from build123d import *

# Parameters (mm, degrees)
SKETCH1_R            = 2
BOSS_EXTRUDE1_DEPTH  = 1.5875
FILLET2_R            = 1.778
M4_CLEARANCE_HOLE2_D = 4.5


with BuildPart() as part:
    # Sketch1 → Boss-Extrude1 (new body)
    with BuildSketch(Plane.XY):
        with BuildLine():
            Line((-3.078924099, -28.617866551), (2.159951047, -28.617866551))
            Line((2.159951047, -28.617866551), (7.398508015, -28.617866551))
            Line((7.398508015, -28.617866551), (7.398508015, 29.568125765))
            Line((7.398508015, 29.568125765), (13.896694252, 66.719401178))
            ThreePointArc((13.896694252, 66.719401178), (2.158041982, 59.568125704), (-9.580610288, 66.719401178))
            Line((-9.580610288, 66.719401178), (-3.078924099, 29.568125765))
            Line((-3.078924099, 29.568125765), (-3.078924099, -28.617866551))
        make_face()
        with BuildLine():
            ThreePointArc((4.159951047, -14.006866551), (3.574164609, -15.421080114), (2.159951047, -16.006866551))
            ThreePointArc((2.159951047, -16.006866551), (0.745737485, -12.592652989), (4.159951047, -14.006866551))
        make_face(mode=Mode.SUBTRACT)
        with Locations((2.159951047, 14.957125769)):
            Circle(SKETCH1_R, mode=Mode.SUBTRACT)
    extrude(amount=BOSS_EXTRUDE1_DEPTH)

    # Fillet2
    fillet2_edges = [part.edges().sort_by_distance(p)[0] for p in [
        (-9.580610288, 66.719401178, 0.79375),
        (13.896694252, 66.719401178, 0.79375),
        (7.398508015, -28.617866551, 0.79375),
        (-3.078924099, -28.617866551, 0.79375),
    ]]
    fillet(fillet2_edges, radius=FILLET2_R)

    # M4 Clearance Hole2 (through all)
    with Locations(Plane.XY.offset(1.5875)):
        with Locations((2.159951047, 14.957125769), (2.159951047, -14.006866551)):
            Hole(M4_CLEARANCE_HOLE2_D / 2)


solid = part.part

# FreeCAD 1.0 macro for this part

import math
import FreeCAD as App
import Part
import Sketcher

V = App.Vector
Q = App.Units.Quantity


def edges_at(feature, points):
    """Names of the edges that pass closest to the given points."""
    edges = feature.Shape.Edges
    near = lambda p: min(range(len(edges)), key=lambda i: edges[i].distToShape(Part.Vertex(*p))[0])
    return sorted({f"Edge{near(p) + 1}" for p in points})

doc = App.newDocument("Part")
body = doc.addObject("PartDesign::Body", "Body")

# Sketch on XY plane
sketch1 = body.newObject("Sketcher::SketchObject", "Sketch")
sketch1.AttachmentSupport = (doc.getObject("XY_Plane"), [""])
sketch1.MapMode = "FlatFace"
sketch1.addGeometry([
    Part.LineSegment(V(-3.1, -28.6, 0), V(7.4, -28.6, 0)),  # 0
    Part.LineSegment(V(7.4, -28.6, 0), V(7.4, 29.6, 0)),  # 1
    Part.LineSegment(V(7.4, 29.6, 0), V(13.9, 66.7, 0)),  # 2
    Part.ArcOfCircle(Part.Circle(V(2.2, 72.8, 0), V(0, 0, 1), 13.2), math.radians(-153), math.radians(-27)),  # 3
    Part.LineSegment(V(-9.6, 66.7, 0), V(-3.1, 29.6, 0)),  # 4
    Part.LineSegment(V(-3.1, 29.6, 0), V(-3.1, -28.6, 0)),  # 5
    Part.ArcOfCircle(Part.Circle(V(2.2, -14, 0), V(0, 0, 1), 2), math.radians(0), math.radians(270)),  # 6
    Part.ArcOfCircle(Part.Circle(V(2.2, -14, 0), V(0, 0, 1), 2), math.radians(-90), math.radians(0)),  # 7
    Part.Circle(V(2.2, 15, 0), V(0, 0, 1), 2),  # 8
], False)
sketch1.addConstraint([
    Sketcher.Constraint("Coincident", 0, 2, 1, 1),
    Sketcher.Constraint("Coincident", 1, 2, 2, 1),
    Sketcher.Constraint("Coincident", 2, 2, 3, 2),
    Sketcher.Constraint("Coincident", 3, 1, 4, 1),
    Sketcher.Constraint("Coincident", 4, 2, 5, 1),
    Sketcher.Constraint("Coincident", 5, 2, 0, 1),
    Sketcher.Constraint("Tangent", 6, 1, 7, 2),
    Sketcher.Constraint("Coincident", 7, 1, 6, 2),
    Sketcher.Constraint("Horizontal", 0),
    Sketcher.Constraint("Vertical", 1),
    Sketcher.Constraint("Vertical", 5),
    Sketcher.Constraint("Equal", 7, 8),
    Sketcher.Constraint("Horizontal", 2, 2, 3, 1),
    Sketcher.Constraint("Horizontal", 1, 2, 4, 2),
    Sketcher.Constraint("Horizontal", 7, 3, 6, 1),
    Sketcher.Constraint("Vertical", 7, 3, 8, 3),
    Sketcher.Constraint("Vertical", 8, 3, 7, 1),
    Sketcher.Constraint("Diameter", 8, Q("4 mm")),
    Sketcher.Constraint("Radius", 3, Q("13.21 mm")),
    Sketcher.Constraint("DistanceY", 1, 2, 3, 3, Q("43.21 mm")),
    Sketcher.Constraint("DistanceY", 8, 3, 3, 3, Q("57.821 mm")),
    Sketcher.Constraint("DistanceY", 0, 2, 6, 3, Q("14.611 mm")),
    Sketcher.Constraint("Distance", 4, Q("37.715901 mm")),
    Sketcher.Constraint("DistanceY", -1, 1, 2, 2, Q("66.719401 mm")),
    Sketcher.Constraint("DistanceX", 0, 1, 0, 2, Q("10.477432 mm")),
    Sketcher.Constraint("DistanceY", 1, 1, 1, 2, Q("58.185992 mm")),
    Sketcher.Constraint("DistanceX", -1, 1, 3, 3, Q("2.158042 mm")),
    Sketcher.Constraint("DistanceX", -1, 1, 6, 3, Q("2.159951 mm")),
    Sketcher.Constraint("DistanceX", -1, 1, 0, 2, Q("7.398508 mm")),
])
pad1 = body.newObject("PartDesign::Pad", "Pad")
pad1.Profile = sketch1
pad1.Length = 1.5875
doc.recompute()

fillet = body.newObject("PartDesign::Fillet", "Fillet")
fillet.Base = (pad1, edges_at(pad1, [
    (-9.581, 66.719, 0.794),
    (13.897, 66.719, 0.794),
    (7.399, -28.618, 0.794),
    (-3.079, -28.618, 0.794),
]))
fillet.Radius = 1.778

# Sketch on XY plane
sketch2 = body.newObject("Sketcher::SketchObject", "Sketch001")
sketch2.AttachmentSupport = (doc.getObject("XY_Plane"), [""])
sketch2.MapMode = "FlatFace"
sketch2.AttachmentOffset = App.Placement(V(0, 0, 1.5875), App.Rotation())
sketch2.addGeometry([
    Part.Circle(V(2.2, 15, 0), V(0, 0, 1), 2.2),
    Part.Circle(V(2.2, -14, 0), V(0, 0, 1), 2.2),
], False)
sketch2.addConstraint([
    Sketcher.Constraint("Equal", 0, 1),
    Sketcher.Constraint("Vertical", 0, 3, 1, 3),
    Sketcher.Constraint("Diameter", 0, Q("4.5 mm")),
    Sketcher.Constraint("DistanceX", -1, 1, 0, 3, Q("2.159951 mm")),
    Sketcher.Constraint("DistanceY", -1, 1, 0, 3, Q("14.957126 mm")),
    Sketcher.Constraint("DistanceY", 1, 3, -1, 1, Q("14.006867 mm")),
])
doc.recompute()
hole = body.newObject("PartDesign::Hole", "Hole")
hole.Profile = sketch2
hole.ThreadType = "None"
hole.Diameter = 4.5
hole.DepthType = "ThroughAll"

doc.recompute()
